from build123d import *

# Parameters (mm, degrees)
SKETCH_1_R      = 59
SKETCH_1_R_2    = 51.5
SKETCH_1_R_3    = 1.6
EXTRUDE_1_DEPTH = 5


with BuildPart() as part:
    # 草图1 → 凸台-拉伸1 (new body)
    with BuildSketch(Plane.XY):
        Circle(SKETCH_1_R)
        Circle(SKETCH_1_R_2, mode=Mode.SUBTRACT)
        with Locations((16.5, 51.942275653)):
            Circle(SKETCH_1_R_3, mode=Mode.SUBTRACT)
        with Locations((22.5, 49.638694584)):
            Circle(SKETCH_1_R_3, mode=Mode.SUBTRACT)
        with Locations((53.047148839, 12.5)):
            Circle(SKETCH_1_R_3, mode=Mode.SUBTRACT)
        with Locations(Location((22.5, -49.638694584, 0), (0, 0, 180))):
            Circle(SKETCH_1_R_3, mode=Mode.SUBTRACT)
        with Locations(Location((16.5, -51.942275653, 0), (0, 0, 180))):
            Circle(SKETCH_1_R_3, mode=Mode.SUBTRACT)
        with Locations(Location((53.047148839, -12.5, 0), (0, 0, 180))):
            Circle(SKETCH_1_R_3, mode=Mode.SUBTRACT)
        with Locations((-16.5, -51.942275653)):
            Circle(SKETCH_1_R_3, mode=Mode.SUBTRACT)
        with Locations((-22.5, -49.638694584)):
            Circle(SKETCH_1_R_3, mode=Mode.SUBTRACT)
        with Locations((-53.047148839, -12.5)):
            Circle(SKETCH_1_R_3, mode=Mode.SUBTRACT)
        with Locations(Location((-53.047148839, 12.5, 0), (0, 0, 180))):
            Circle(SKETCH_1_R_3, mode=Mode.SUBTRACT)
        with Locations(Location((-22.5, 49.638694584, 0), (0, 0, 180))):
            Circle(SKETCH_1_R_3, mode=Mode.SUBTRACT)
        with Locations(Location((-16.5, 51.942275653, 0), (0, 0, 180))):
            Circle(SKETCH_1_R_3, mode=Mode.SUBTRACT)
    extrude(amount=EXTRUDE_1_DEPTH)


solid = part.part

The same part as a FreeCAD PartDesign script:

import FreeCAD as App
import Part
import Sketcher

V = App.Vector
Q = App.Units.Quantity

doc = App.newDocument("Part")
params = doc.addObject("Spreadsheet::Sheet", "Params")
for row, (alias, value) in enumerate([
    ("sketch1_diameter", "118 mm"),
    ("sketch1_diameter2", "103 mm"),
    ("sketch1_diameter3", "3.2 mm"),
    ("pad1_length", "5 mm"),
], start=1):
    params.set(f"A{row}", alias)
    params.set(f"B{row}", "=" + value)
    params.setAlias(f"B{row}", alias)

body = doc.addObject("PartDesign::Body", "Body")

sketch1 = body.newObject("Sketcher::SketchObject", "Sketch")
sketch1.AttachmentSupport = (doc.getObject("XY_Plane"), [""])
sketch1.MapMode = "FlatFace"
sketch1.addGeometry([
    Part.Circle(V(0, 0, 0), V(0, 0, 1), 59),
    Part.Circle(V(-22.5, -49.6, 0), V(0, 0, 1), 1.6),
    Part.Circle(V(-16.5, -51.9, 0), V(0, 0, 1), 1.6),
    Part.Circle(V(-53, -12.5, 0), V(0, 0, 1), 1.6),
    Part.Circle(V(0, 0, 0), V(0, 0, 1), 51.5),
    Part.Circle(V(16.5, -51.9, 0), V(0, 0, 1), 1.6),
    Part.Circle(V(22.5, -49.6, 0), V(0, 0, 1), 1.6),
    Part.Circle(V(53, -12.5, 0), V(0, 0, 1), 1.6),
    Part.Circle(V(-53, 12.5, 0), V(0, 0, 1), 1.6),
    Part.Circle(V(-22.5, 49.6, 0), V(0, 0, 1), 1.6),
    Part.Circle(V(-16.5, 51.9, 0), V(0, 0, 1), 1.6),
    Part.Circle(V(53, 12.5, 0), V(0, 0, 1), 1.6),
    Part.Circle(V(16.5, 51.9, 0), V(0, 0, 1), 1.6),
    Part.Circle(V(22.5, 49.6, 0), V(0, 0, 1), 1.6),
], False)
sketch1.addConstraint([
    Sketcher.Constraint("Coincident", 0, 3, -1, 1),
    Sketcher.Constraint("Coincident", 4, 3, -1, 1),
    Sketcher.Constraint("Equal", 1, 2),
    Sketcher.Constraint("Equal", 2, 3),
    Sketcher.Constraint("Equal", 3, 5),
    Sketcher.Constraint("Equal", 5, 6),
    Sketcher.Constraint("Equal", 6, 7),
    Sketcher.Constraint("Equal", 7, 8),
    Sketcher.Constraint("Equal", 8, 9),
    Sketcher.Constraint("Equal", 9, 10),
    Sketcher.Constraint("Equal", 10, 11),
    Sketcher.Constraint("Equal", 11, 12),
    Sketcher.Constraint("Equal", 12, 13),
    Sketcher.Constraint("Symmetric", 7, 3, 8, 3, -1, 1),
    Sketcher.Constraint("Symmetric", 6, 3, 9, 3, -1, 1),
    Sketcher.Constraint("Symmetric", 5, 3, 10, 3, -1, 1),
    Sketcher.Constraint("Symmetric", 3, 3, 11, 3, -1, 1),
    Sketcher.Constraint("Symmetric", 2, 3, 12, 3, -1, 1),
    Sketcher.Constraint("Symmetric", 1, 3, 13, 3, -1, 1),
    Sketcher.Constraint("Symmetric", 2, 3, 5, 3, -2),
    Sketcher.Constraint("Symmetric", 1, 3, 6, 3, -2),
    Sketcher.Constraint("Symmetric", 3, 3, 7, 3, -2),
    Sketcher.Constraint("Diameter", 0, Q("118 mm")),
    Sketcher.Constraint("Diameter", 4, Q("103 mm")),
    Sketcher.Constraint("Diameter", 1, Q("3.2 mm")),
    Sketcher.Constraint("DistanceX", 1, 3, 2, 3, Q("6 mm")),
    Sketcher.Constraint("DistanceX", 2, 3, 5, 3, Q("33 mm")),
    Sketcher.Constraint("DistanceY", 3, 3, 8, 3, Q("25 mm")),
    Sketcher.Constraint("DistanceX", 3, 3, -1, 1, Q("53.047149 mm")),
    Sketcher.Constraint("DistanceY", 2, 3, 1, 3, Q("2.303581 mm")),
    Sketcher.Constraint("DistanceY", 1, 3, -1, 1, Q("49.638695 mm")),
])
sketch1.setExpression("Constraints[22]", "Params.sketch1_diameter")
sketch1.setExpression("Constraints[23]", "Params.sketch1_diameter2")
sketch1.setExpression("Constraints[24]", "Params.sketch1_diameter3")
pad1 = body.newObject("PartDesign::Pad", "Pad")
pad1.Profile = sketch1
pad1.setExpression("Length", "Params.pad1_length")

doc.recompute()
